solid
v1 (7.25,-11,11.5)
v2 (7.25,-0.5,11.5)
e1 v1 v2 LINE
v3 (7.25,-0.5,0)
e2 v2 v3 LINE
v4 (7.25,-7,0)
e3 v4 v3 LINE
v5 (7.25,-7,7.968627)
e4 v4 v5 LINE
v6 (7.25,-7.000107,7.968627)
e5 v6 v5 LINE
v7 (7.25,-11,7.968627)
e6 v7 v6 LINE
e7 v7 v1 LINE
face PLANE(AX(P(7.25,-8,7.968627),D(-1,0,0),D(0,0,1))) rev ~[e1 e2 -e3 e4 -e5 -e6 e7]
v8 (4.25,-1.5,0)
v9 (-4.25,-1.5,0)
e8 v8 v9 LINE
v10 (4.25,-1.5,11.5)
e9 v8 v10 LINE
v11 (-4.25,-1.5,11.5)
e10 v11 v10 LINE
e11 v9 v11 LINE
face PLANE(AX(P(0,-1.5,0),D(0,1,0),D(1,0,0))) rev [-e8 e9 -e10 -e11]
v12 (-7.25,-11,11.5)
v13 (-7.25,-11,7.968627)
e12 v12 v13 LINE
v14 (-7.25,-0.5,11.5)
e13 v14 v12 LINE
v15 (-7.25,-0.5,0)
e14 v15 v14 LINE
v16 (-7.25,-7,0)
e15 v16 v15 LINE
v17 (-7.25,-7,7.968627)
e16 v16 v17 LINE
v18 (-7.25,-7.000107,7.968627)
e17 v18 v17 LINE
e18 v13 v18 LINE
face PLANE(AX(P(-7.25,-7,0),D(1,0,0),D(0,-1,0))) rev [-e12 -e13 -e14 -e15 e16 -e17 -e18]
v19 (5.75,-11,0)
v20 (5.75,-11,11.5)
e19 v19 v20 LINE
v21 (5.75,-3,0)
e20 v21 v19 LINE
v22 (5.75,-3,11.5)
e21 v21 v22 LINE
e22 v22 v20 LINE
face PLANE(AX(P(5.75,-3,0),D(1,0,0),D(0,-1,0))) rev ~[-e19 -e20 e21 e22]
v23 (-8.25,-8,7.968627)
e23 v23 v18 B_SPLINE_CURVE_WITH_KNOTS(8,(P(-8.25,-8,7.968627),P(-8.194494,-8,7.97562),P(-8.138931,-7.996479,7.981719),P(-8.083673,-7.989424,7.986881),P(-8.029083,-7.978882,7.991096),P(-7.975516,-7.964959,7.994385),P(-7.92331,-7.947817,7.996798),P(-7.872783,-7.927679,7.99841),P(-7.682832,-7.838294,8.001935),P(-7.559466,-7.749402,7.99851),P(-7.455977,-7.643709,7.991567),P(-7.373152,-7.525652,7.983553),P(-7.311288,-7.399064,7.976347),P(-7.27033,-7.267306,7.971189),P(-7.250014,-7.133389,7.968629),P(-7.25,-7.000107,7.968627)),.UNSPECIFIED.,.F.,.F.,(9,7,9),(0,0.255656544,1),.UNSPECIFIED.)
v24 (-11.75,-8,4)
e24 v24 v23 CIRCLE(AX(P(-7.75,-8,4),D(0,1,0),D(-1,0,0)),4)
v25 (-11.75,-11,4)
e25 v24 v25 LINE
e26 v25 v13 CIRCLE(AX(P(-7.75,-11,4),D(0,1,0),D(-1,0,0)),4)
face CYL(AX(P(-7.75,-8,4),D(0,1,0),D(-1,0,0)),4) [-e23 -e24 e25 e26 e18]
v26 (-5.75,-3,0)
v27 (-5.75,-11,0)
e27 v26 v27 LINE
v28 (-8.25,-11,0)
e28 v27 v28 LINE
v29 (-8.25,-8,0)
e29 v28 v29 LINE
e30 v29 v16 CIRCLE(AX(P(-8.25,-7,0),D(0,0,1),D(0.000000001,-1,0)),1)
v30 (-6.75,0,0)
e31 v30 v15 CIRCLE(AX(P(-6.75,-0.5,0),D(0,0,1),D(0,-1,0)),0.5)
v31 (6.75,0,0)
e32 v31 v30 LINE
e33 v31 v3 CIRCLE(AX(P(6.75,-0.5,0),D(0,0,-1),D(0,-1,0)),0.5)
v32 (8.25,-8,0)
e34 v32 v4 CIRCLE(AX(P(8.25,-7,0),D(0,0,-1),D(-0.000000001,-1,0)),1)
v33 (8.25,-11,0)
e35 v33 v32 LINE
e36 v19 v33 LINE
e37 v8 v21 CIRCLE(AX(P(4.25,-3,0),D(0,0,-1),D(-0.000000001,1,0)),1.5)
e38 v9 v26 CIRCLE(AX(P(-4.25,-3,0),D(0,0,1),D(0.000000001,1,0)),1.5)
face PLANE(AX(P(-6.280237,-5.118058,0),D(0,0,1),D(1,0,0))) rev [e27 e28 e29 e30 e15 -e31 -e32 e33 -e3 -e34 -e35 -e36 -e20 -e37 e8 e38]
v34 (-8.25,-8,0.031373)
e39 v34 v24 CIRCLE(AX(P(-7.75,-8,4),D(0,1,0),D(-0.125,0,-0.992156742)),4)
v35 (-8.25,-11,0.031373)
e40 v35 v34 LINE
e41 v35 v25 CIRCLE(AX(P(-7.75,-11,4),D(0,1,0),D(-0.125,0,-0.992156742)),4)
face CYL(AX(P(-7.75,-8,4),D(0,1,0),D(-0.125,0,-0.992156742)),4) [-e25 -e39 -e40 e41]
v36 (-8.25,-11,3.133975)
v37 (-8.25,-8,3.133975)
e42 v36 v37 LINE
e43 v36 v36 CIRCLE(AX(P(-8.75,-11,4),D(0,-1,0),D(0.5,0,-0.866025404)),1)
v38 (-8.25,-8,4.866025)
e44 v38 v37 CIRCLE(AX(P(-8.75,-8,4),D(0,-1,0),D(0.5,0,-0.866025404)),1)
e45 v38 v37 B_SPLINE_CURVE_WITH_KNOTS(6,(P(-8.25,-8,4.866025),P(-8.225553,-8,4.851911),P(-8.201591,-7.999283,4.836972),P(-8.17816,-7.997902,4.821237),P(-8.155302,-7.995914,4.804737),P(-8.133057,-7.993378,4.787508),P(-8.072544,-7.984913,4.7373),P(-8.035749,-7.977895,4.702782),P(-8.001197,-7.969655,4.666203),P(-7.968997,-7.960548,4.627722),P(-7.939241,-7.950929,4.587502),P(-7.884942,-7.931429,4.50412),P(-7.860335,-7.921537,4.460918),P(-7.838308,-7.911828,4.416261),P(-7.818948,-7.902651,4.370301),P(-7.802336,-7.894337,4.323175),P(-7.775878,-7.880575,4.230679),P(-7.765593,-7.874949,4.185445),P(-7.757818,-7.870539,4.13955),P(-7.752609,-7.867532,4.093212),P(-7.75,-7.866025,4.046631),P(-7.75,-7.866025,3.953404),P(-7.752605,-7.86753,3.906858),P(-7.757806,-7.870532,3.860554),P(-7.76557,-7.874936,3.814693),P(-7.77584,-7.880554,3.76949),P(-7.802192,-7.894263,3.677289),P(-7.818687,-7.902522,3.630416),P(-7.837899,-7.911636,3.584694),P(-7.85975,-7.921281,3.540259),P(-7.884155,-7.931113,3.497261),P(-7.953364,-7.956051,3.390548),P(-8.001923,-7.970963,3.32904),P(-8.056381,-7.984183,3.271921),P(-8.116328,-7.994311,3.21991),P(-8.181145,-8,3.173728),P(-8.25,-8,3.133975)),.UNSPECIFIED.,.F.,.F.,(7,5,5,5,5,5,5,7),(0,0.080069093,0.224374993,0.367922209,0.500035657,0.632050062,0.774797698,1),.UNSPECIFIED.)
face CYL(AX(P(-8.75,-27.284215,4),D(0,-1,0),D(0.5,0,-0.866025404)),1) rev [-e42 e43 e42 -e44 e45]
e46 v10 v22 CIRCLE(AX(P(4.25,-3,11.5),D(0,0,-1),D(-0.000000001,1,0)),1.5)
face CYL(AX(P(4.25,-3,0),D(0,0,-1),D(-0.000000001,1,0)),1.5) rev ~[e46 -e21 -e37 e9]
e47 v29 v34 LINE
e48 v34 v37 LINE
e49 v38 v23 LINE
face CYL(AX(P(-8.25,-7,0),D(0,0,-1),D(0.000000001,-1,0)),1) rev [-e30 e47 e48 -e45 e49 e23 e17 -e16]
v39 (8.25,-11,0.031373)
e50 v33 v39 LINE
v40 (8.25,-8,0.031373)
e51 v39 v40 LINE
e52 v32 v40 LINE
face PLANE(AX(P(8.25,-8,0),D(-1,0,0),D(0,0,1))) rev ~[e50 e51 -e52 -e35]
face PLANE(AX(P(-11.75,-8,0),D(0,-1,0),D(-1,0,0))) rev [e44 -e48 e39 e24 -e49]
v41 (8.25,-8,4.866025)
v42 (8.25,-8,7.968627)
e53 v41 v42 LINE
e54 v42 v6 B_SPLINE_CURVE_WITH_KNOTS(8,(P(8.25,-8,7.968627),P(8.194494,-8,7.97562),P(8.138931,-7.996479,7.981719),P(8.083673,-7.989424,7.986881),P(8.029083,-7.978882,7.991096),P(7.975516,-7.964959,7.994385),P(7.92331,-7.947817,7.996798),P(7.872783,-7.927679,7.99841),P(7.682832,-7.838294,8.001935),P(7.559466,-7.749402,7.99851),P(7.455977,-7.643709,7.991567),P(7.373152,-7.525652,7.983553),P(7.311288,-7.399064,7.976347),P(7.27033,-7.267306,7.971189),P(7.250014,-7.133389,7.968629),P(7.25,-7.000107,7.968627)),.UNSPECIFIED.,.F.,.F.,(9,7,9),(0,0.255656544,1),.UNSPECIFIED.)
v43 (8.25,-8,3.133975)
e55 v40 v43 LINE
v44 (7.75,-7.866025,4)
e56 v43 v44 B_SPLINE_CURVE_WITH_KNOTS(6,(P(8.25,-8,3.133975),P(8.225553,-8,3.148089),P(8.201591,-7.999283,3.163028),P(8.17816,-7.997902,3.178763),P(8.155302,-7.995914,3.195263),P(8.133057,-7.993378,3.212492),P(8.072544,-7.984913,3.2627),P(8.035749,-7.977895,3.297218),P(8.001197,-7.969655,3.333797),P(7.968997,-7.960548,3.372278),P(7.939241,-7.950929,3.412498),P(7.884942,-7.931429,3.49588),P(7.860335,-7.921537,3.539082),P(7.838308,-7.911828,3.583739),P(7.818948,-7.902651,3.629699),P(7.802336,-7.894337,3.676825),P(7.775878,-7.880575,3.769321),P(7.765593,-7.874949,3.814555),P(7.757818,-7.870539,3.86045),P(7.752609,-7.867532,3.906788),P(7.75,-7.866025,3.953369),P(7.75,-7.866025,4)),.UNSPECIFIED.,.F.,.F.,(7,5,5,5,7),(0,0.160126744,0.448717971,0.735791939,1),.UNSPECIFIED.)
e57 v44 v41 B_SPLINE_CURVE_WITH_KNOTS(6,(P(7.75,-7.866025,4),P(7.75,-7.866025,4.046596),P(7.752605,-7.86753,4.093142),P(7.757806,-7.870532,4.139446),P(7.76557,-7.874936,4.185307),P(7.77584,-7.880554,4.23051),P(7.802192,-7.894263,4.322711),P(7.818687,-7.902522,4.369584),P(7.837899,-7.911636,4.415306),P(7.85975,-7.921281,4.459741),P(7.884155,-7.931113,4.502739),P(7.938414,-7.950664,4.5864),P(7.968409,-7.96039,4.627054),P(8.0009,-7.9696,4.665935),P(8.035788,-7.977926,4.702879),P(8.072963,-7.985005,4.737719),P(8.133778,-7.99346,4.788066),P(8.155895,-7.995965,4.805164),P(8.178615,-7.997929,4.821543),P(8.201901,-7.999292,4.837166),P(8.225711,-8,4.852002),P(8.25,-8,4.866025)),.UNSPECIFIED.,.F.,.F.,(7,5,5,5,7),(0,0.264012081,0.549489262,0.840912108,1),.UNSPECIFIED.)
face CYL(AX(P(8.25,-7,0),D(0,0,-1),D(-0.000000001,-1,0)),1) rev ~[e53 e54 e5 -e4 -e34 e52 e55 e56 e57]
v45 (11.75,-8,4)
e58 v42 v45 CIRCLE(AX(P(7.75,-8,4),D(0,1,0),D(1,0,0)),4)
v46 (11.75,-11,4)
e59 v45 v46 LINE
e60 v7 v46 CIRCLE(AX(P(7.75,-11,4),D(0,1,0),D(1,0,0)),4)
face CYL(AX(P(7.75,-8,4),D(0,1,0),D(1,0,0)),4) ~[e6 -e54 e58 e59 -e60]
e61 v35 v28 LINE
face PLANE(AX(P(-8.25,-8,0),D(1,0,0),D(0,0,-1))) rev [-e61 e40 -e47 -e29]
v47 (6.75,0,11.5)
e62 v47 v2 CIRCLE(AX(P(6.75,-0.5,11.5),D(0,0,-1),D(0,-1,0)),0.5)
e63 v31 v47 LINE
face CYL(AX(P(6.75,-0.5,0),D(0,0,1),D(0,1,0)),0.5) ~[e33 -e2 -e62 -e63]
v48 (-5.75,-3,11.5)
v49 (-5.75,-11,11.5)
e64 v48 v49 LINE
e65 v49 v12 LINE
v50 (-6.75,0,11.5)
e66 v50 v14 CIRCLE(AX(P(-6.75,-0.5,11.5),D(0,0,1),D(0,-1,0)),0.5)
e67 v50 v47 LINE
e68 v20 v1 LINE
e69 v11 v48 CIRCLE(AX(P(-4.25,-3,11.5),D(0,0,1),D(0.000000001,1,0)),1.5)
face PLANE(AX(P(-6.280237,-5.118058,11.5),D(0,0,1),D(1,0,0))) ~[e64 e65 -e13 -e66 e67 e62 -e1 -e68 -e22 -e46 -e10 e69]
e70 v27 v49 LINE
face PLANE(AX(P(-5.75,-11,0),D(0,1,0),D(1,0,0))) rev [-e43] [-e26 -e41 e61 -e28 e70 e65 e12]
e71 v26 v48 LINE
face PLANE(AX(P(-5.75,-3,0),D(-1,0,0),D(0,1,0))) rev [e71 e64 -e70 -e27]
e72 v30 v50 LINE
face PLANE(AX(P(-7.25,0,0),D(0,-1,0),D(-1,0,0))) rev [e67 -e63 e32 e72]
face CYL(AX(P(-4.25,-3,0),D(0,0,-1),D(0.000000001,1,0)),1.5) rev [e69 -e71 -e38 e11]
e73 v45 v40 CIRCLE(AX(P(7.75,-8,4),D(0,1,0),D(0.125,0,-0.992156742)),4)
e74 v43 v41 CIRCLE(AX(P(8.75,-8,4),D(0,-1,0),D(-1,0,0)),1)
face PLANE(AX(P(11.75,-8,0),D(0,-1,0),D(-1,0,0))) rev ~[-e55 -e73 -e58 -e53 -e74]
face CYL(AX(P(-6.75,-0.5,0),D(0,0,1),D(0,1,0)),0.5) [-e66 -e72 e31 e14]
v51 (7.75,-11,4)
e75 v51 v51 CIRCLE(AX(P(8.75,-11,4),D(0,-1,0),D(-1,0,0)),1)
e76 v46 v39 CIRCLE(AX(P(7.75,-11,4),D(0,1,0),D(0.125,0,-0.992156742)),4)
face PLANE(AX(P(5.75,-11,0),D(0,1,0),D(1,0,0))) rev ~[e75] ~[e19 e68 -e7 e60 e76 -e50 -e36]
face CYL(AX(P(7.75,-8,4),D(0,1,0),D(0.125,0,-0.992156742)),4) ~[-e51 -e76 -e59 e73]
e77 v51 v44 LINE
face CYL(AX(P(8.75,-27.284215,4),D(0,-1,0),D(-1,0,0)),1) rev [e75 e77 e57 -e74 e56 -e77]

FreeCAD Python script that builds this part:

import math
import FreeCAD as App
import Part
import Sketcher
from FreeCAD import Vector


def edges_at(feature, points):
    """Names of the edges that pass closest to the given points."""
    edges = feature.Shape.Edges
    near = lambda p: min(range(len(edges)), key=lambda i: edges[i].distToShape(Part.Vertex(*p))[0])
    return sorted({f"Edge{near(p) + 1}" for p in points})

doc = App.newDocument("Part")
body = doc.addObject("PartDesign::Body", "Body")

sketch1 = doc.addObject("Sketcher::SketchObject", "Sketch")
body.addObject(sketch1)
sketch1.AttachmentSupport = (doc.XY_Plane, [""])
sketch1.MapMode = "FlatFace"
sketch1.addGeometry([
    Part.LineSegment(Vector(7.25, 0, 0), Vector(0, 0, 0)),
    Part.LineSegment(Vector(0, 0, 0), Vector(0, -1.5, 0)),
    Part.LineSegment(Vector(0, -1.5, 0), Vector(4.25, -1.5, 0)),
    Part.ArcOfCircle(Part.Circle(Vector(4.25, -3, 0), Vector(0, 0, 1), 1.5), math.radians(0), math.radians(90)),
    Part.LineSegment(Vector(5.75, -3, 0), Vector(5.75, -11, 0)),
    Part.LineSegment(Vector(5.75, -11, 0), Vector(11.75, -11, 0)),
    Part.LineSegment(Vector(11.75, -11, 0), Vector(11.75, -8, 0)),
    Part.LineSegment(Vector(11.75, -8, 0), Vector(8.25, -8, 0)),
    Part.ArcOfCircle(Part.Circle(Vector(8.25, -7, 0), Vector(0, 0, 1), 1), math.radians(-180), math.radians(-90)),
    Part.LineSegment(Vector(7.25, -7, 0), Vector(7.25, 0, 0)),
], False)
sketch1.addConstraint([
    Sketcher.Constraint("Coincident", 0, 2, 1, 1),
    Sketcher.Constraint("Coincident", 1, 2, 2, 1),
    Sketcher.Constraint("Tangent", 2, 2, 3, 2),
    Sketcher.Constraint("Tangent", 3, 1, 4, 1),
    Sketcher.Constraint("Coincident", 4, 2, 5, 1),
    Sketcher.Constraint("Coincident", 5, 2, 6, 1),
    Sketcher.Constraint("Coincident", 6, 2, 7, 1),
    Sketcher.Constraint("Tangent", 7, 2, 8, 2),
    Sketcher.Constraint("Tangent", 8, 1, 9, 1),
    Sketcher.Constraint("Coincident", 9, 2, 0, 1),
    Sketcher.Constraint("Horizontal", 0),
    Sketcher.Constraint("Vertical", 1),
    Sketcher.Constraint("Horizontal", 2),
    Sketcher.Constraint("Vertical", 4),
    Sketcher.Constraint("Horizontal", 5),
    Sketcher.Constraint("Vertical", 6),
    Sketcher.Constraint("Horizontal", 7),
    Sketcher.Constraint("Vertical", 9),
    Sketcher.Constraint("Coincident", 0, 2, -1, 1),
    Sketcher.Constraint("Radius", 8, 1.0),
    Sketcher.Constraint("Radius", 3, 1.5),
    Sketcher.Constraint("DistanceX", 5, 1, 5, 2, 6.0),
    Sketcher.Constraint("DistanceY", 4, 2, 4, 1, 8.0),
    Sketcher.Constraint("DistanceY", 6, 1, 6, 2, 3.0),
    Sketcher.Constraint("DistanceY", 9, 1, 9, 2, 7.0),
    Sketcher.Constraint("DistanceX", 7, 2, 7, 1, 3.5),
    Sketcher.Constraint("DistanceX", 0, 2, 0, 1, 7.25),
])
pad1 = doc.addObject("PartDesign::Pad", "Pad")
body.addObject(pad1)
pad1.Profile = sketch1
pad1.Length = 11.5
doc.recompute()

mirrored = doc.addObject("PartDesign::Mirrored", "Mirrored")
body.addObject(mirrored)
mirrored.Originals = [pad1]
mirrored.MirrorPlane = (doc.YZ_Plane, [""])
body.Tip = mirrored
doc.recompute()

fillet = doc.addObject("PartDesign::Fillet", "Fillet")
body.addObject(fillet)
fillet.Base = (mirrored, edges_at(mirrored, [(7.25, 0, 5.75), (-7.25, 0, 5.75)]))
fillet.Radius = 0.5

sketch2 = doc.addObject("Sketcher::SketchObject", "Sketch001")
body.addObject(sketch2)
sketch2.AttachmentSupport = (doc.XZ_Plane, [""])
sketch2.MapMode = "FlatFace"
sketch2.AttachmentOffset = App.Placement(Vector(0, 0, 8), App.Rotation())
sketch2.addGeometry([
    Part.ArcOfCircle(Part.Circle(Vector(7.75, 4, 0), Vector(0, 0, 1), 4), math.radians(82.819244), math.radians(97.180756)),
    Part.LineSegment(Vector(7.25, 7.968627, 0), Vector(7.25, 11.5, 0)),
    Part.LineSegment(Vector(7.25, 11.5, 0), Vector(11.75, 11.5, 0)),
    Part.LineSegment(Vector(11.75, 11.5, 0), Vector(11.75, 4, 0)),
    Part.ArcOfCircle(Part.Circle(Vector(7.75, 4, 0), Vector(0, 0, 1), 4), math.radians(0), math.radians(82.819244)),
    Part.LineSegment(Vector(11.75, 0, 0), Vector(8.25, 0, 0)),
    Part.LineSegment(Vector(8.25, 0, 0), Vector(8.25, 0.031373, 0)),
    Part.ArcOfCircle(Part.Circle(Vector(7.75, 4, 0), Vector(0, 0, 1), 4), math.radians(-82.819244), math.radians(0)),
    Part.LineSegment(Vector(11.75, 4, 0), Vector(11.75, 0, 0)),
], False)
sketch2.addConstraint([
    Sketcher.Constraint("Coincident", 0, 2, 1, 1),
    Sketcher.Constraint("Coincident", 1, 2, 2, 1),
    Sketcher.Constraint("Coincident", 2, 2, 3, 1),
    Sketcher.Constraint("Tangent", 3, 2, 4, 1),
    Sketcher.Constraint("Tangent", 4, 2, 0, 1),
    Sketcher.Constraint("Coincident", 5, 2, 6, 1),
    Sketcher.Constraint("Coincident", 6, 2, 7, 1),
    Sketcher.Constraint("Tangent", 7, 2, 8, 1),
    Sketcher.Constraint("Coincident", 8, 2, 5, 1),
    Sketcher.Constraint("Vertical", 1),
    Sketcher.Constraint("Horizontal", 2),
    Sketcher.Constraint("Vertical", 3),
    Sketcher.Constraint("Horizontal", 5),
    Sketcher.Constraint("Vertical", 6),
    Sketcher.Constraint("Vertical", 8),
    Sketcher.Constraint("Coincident", 7, 3, 0, 3),
    Sketcher.Constraint("Coincident", 7, 2, 3, 2),
    Sketcher.Constraint("PointOnObject", 5, 2, -1),
    Sketcher.Constraint("Horizontal", 0, 2, 4, 2),
    Sketcher.Constraint("Vertical", 4, 2, 5, 2),
    Sketcher.Constraint("Radius", 0, 4.0),
    Sketcher.Constraint("DistanceY", 8, 2, 8, 1, 4.0),
    Sketcher.Constraint("DistanceX", 2, 1, 2, 2, 4.5),
    Sketcher.Constraint("DistanceY", 3, 2, 3, 1, 7.5),
    Sketcher.Constraint("DistanceX", -1, 1, 0, 3, 7.75),
])
pocket1 = doc.addObject("PartDesign::Pocket", "Pocket")
body.addObject(pocket1)
pocket1.Profile = sketch2
pocket1.Length = 38.568429
pocket1.Midplane = True
doc.recompute()

mirrored2 = doc.addObject("PartDesign::Mirrored", "Mirrored001")
body.addObject(mirrored2)
mirrored2.Originals = [pocket1]
mirrored2.MirrorPlane = (doc.YZ_Plane, [""])
body.Tip = mirrored2

sketch3 = doc.addObject("Sketcher::SketchObject", "Sketch002")
body.addObject(sketch3)
sketch3.AttachmentSupport = (doc.XZ_Plane, [""])
sketch3.MapMode = "FlatFace"
sketch3.AttachmentOffset = App.Placement(Vector(0, 0, 8), App.Rotation())
sketch3.addGeometry([
    Part.Circle(Vector(8.75, 4, 0), Vector(0, 0, 1), 1),
    Part.Circle(Vector(-8.75, 4, 0), Vector(0, 0, 1), 1),
], False)
sketch3.addConstraint([
    Sketcher.Constraint("Equal", 0, 1),
    Sketcher.Constraint("Symmetric", 0, 3, 1, 3, -2),
    Sketcher.Constraint("Diameter", 0, 2.0),
    Sketcher.Constraint("DistanceY", -1, 1, 0, 3, 4.0),
    Sketcher.Constraint("DistanceX", 1, 3, 0, 3, 17.5),
])
pocket2 = doc.addObject("PartDesign::Pocket", "Pocket001")
body.addObject(pocket2)
pocket2.Profile = sketch3
pocket2.Type = "ThroughAll"
pocket2.Midplane = True

doc.recompute()
